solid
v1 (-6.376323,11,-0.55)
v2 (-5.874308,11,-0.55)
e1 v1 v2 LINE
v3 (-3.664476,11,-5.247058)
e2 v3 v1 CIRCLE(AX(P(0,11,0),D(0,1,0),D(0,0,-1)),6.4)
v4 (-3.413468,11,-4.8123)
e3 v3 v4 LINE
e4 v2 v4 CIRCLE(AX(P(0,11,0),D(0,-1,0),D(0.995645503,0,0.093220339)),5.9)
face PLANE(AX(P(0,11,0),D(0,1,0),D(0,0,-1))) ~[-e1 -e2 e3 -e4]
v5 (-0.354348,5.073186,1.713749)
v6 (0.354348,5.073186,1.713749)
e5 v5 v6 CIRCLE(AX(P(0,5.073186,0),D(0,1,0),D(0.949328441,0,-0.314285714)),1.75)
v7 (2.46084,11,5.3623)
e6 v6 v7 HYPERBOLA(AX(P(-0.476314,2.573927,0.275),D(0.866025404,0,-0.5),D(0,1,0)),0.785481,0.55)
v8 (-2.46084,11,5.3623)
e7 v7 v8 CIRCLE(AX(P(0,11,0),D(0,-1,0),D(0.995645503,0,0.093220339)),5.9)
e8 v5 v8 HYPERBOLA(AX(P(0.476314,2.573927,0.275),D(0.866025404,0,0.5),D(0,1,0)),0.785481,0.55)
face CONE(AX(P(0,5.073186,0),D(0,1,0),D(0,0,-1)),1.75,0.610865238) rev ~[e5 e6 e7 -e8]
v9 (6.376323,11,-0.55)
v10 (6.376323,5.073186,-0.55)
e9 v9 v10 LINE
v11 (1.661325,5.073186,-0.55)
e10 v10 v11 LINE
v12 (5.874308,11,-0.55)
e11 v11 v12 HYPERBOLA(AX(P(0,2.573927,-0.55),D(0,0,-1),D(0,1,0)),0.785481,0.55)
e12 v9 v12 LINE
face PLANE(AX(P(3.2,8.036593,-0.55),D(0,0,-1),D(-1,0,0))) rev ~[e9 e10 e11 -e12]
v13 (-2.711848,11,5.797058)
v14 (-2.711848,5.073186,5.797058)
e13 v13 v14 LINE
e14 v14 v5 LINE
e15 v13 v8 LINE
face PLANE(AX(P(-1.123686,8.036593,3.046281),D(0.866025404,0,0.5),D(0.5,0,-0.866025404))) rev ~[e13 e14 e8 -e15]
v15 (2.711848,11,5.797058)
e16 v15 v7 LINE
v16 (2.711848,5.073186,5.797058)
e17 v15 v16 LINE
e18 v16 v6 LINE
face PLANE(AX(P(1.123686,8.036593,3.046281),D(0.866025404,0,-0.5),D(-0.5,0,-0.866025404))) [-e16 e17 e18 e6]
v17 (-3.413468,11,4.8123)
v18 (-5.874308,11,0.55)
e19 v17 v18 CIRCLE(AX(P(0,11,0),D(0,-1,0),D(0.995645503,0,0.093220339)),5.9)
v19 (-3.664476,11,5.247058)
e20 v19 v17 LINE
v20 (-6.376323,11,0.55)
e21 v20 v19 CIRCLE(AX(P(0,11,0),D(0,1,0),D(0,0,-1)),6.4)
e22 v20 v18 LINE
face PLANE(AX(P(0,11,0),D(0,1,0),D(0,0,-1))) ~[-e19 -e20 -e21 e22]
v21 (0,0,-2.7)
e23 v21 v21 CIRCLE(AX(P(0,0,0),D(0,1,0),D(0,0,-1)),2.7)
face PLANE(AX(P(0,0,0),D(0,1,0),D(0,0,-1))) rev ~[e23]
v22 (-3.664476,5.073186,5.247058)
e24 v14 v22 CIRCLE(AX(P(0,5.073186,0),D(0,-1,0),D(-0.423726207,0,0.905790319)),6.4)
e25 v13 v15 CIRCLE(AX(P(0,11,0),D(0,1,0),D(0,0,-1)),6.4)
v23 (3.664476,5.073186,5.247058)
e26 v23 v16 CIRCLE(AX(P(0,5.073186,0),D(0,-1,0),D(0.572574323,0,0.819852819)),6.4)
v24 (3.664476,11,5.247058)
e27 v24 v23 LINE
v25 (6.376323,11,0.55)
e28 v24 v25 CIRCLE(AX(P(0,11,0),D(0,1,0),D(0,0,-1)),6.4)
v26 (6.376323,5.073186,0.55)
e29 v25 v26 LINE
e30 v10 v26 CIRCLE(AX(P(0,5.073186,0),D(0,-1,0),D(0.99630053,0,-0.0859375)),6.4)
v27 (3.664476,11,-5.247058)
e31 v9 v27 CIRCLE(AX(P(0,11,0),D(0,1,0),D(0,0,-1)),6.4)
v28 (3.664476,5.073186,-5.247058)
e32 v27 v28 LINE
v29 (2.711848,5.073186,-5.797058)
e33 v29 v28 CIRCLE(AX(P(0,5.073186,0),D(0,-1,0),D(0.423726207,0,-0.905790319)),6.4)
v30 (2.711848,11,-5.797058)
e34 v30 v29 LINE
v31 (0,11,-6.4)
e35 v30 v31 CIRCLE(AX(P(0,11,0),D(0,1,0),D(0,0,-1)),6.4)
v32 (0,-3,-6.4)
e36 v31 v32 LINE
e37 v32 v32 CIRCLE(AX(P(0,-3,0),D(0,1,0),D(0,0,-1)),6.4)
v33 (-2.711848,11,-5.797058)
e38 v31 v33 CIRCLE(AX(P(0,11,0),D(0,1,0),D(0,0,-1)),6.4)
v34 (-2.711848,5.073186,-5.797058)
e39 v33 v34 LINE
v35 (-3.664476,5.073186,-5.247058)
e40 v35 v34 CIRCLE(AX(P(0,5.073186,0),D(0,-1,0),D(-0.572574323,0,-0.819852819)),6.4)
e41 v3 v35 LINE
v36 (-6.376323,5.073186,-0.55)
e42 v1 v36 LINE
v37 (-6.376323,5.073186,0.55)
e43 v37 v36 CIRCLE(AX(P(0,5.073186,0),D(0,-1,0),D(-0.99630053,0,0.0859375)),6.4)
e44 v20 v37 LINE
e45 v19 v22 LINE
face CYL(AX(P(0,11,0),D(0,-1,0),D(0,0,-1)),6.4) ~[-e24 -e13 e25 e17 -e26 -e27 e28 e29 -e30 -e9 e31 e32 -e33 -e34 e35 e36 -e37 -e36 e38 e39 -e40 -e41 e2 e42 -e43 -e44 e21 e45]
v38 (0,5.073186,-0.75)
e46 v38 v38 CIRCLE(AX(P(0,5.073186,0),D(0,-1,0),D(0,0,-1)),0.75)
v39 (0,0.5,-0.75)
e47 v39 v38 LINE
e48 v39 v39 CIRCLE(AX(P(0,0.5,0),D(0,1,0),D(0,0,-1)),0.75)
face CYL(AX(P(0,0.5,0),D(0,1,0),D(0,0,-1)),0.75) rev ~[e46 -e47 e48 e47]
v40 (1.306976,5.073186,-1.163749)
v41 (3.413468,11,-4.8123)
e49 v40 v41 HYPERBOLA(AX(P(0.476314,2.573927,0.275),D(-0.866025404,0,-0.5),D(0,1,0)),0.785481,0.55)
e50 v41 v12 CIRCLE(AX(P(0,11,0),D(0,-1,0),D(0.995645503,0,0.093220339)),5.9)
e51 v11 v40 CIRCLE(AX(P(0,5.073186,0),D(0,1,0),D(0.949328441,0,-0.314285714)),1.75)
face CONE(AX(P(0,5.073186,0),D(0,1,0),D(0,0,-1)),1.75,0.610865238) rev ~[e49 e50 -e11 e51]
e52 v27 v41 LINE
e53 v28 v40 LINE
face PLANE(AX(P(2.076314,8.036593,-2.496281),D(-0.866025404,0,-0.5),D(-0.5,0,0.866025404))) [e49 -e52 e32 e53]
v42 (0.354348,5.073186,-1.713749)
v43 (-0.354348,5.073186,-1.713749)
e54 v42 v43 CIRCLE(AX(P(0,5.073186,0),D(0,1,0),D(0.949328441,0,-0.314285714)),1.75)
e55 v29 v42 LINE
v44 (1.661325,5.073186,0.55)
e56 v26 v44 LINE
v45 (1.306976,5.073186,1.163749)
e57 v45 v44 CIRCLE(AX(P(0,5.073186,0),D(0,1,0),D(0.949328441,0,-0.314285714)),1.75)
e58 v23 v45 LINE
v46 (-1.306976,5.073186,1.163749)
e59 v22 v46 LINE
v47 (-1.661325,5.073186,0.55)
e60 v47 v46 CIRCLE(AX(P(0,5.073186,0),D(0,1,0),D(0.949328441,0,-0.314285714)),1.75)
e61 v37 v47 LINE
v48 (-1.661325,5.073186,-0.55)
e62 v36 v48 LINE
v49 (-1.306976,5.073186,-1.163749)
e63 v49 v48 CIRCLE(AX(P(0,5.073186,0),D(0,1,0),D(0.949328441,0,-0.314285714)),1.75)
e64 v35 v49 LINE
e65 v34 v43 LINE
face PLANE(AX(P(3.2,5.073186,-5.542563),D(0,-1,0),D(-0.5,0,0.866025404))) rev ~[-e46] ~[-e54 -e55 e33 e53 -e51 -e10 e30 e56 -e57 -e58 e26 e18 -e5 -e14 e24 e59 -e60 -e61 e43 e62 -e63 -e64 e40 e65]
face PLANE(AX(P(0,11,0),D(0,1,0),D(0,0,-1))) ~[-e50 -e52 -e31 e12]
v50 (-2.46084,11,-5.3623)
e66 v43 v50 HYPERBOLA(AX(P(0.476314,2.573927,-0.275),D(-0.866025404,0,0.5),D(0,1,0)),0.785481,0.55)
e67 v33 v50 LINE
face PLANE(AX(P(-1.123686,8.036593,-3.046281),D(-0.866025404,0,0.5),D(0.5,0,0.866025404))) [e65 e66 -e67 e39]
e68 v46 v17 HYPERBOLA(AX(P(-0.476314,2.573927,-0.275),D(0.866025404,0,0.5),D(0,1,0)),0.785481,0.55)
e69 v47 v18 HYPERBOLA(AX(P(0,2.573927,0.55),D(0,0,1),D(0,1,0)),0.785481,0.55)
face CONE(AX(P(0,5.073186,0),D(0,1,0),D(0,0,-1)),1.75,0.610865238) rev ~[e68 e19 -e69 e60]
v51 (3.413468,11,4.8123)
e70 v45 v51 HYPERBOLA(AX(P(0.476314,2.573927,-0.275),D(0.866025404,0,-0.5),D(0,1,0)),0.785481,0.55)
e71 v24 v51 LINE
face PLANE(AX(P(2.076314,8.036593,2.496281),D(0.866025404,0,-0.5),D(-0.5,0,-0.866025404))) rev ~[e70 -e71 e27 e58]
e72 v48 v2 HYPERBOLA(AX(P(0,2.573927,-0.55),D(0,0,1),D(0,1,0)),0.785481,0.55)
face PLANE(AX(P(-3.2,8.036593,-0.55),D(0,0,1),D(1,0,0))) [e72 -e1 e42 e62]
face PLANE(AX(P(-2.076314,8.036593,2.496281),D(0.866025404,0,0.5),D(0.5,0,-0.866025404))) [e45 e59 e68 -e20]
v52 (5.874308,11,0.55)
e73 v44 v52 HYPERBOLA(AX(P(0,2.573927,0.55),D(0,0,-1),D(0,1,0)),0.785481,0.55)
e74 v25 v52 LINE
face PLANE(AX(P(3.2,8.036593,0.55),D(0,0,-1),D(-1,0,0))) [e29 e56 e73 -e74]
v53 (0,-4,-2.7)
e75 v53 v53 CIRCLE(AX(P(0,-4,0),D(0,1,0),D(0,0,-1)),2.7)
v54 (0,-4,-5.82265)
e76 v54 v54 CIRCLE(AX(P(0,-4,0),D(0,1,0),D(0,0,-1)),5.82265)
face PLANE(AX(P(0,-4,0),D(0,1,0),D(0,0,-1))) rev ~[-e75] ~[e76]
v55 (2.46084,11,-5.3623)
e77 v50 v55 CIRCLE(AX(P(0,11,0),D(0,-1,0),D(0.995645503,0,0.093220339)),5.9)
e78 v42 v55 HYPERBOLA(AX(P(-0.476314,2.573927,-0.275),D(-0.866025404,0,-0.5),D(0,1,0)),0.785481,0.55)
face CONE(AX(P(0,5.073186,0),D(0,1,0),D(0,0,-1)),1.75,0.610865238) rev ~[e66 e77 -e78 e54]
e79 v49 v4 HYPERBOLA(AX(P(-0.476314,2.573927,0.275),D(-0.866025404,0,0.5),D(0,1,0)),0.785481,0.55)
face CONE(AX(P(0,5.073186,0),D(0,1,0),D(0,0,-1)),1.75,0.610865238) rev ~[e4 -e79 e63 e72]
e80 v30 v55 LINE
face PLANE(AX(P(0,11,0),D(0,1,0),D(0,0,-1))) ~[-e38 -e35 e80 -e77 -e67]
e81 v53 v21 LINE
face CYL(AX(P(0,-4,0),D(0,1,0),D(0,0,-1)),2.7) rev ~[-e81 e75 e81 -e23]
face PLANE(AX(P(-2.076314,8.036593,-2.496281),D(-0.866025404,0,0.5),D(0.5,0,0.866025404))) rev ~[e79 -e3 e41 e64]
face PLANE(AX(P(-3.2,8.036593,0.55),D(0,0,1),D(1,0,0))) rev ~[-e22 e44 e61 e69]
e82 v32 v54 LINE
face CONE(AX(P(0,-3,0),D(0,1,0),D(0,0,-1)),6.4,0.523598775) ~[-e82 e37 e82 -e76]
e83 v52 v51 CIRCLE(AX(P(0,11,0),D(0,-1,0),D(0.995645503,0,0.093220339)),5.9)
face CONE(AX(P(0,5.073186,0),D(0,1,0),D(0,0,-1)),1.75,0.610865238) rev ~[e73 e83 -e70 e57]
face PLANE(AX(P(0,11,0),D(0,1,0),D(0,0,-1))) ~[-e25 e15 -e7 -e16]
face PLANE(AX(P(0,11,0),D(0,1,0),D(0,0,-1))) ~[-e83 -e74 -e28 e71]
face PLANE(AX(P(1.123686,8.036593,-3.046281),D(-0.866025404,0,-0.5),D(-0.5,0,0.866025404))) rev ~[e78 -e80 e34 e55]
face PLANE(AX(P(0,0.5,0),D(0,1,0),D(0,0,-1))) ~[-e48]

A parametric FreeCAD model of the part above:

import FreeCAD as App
import Part
import Sketcher

V = App.Vector
Q = App.Units.Quantity


def edges_at(feature, points):
    """Names of the edges that pass closest to the given points."""
    edges = feature.Shape.Edges
    near = lambda p: min(range(len(edges)), key=lambda i: edges[i].distToShape(Part.Vertex(*p))[0])
    return sorted({f"Edge{near(p) + 1}" for p in points})


def add_polygon(sketch, points):
    """Adds a closed chain of lines whose ends are joined by coincident constraints."""
    first, n = sketch.GeometryCount, len(points)
    for a, b in zip(points, points[1:] + points[:1]):
        sketch.addGeometry(Part.LineSegment(App.Vector(*a, 0), App.Vector(*b, 0)), False)
    for i in range(n):
        sketch.addConstraint(Sketcher.Constraint("Coincident", first + i, 2, first + (i + 1) % n, 1))

doc = App.newDocument("Part")
params = doc.addObject("Spreadsheet::Sheet", "Params")
for row, (alias, value) in enumerate([
    ("sketch1_width", "1 mm"),
    ("sketch1_height", "4 mm"),
    ("sketch1_height2", "15 mm"),
    ("sketch1_width2", "2.7 mm"),
    ("sketch1_width3", "3.7 mm"),
    ("revolution_angle", "360 deg"),
    ("chamfer_size", "1 mm"),
    ("chamfer_size2", "0.57735 mm"),
    ("sketch2_width", "6.4 mm"),
    ("pocket1_length", "1.1 mm"),
], start=1):
    params.set(f"A{row}", alias)
    params.set(f"B{row}", "=" + value)
    params.setAlias(f"B{row}", alias)

body = doc.addObject("PartDesign::Body", "Body")

sketch1 = body.newObject("Sketcher::SketchObject", "Sketch")
sketch1.AttachmentSupport = (doc.getObject("XY_Plane"), [""])
sketch1.MapMode = "FlatFace"
add_polygon(sketch1, [(0, 0.5), (0, 0), (2.7, 0), (2.7, -4), (6.4, -4), (6.4, 11), (5.9, 11), (1.75, 5.073186), (0.75, 5.073186), (0.75, 0.5)])
sketch1.addConstraint([
    Sketcher.Constraint("Vertical", 0),
    Sketcher.Constraint("Horizontal", 1),
    Sketcher.Constraint("Vertical", 2),
    Sketcher.Constraint("Horizontal", 3),
    Sketcher.Constraint("Vertical", 4),
    Sketcher.Constraint("Horizontal", 5),
    Sketcher.Constraint("Horizontal", 7),
    Sketcher.Constraint("Vertical", 8),
    Sketcher.Constraint("Horizontal", 9),
    Sketcher.Constraint("Coincident", 0, 2, -1, 1),
    Sketcher.Constraint("Equal", 5, 0),
    Sketcher.Constraint("DistanceX", 7, 2, 7, 1, Q("1 mm")),
    Sketcher.Constraint("DistanceY", 2, 2, 2, 1, Q("4 mm")),
    Sketcher.Constraint("DistanceY", 4, 1, 4, 2, Q("15 mm")),
    Sketcher.Constraint("Angle", 6, Q("-125 deg")),
    Sketcher.Constraint("DistanceX", 1, 1, 1, 2, Q("2.7 mm")),
    Sketcher.Constraint("DistanceX", 3, 1, 3, 2, Q("3.7 mm")),
    Sketcher.Constraint("DistanceX", 5, 2, 5, 1, Q("0.5 mm")),
    Sketcher.Constraint("DistanceX", 9, 2, 9, 1, Q("0.75 mm")),
])
sketch1.setExpression("Constraints[21]", "Params.sketch1_width")
sketch1.setExpression("Constraints[22]", "Params.sketch1_height")
sketch1.setExpression("Constraints[23]", "Params.sketch1_height2")
sketch1.setExpression("Constraints[25]", "Params.sketch1_width2")
sketch1.setExpression("Constraints[26]", "Params.sketch1_width3")
revolution = body.newObject("PartDesign::Revolution", "Revolution")
revolution.Profile = sketch1
revolution.ReferenceAxis = (sketch1, ["V_Axis"])
revolution.setExpression("Angle", "Params.revolution_angle")
doc.recompute()

chamfer = body.newObject("PartDesign::Chamfer", "Chamfer")
chamfer.Base = (revolution, edges_at(revolution, [(0, -4, 6.4)]))
chamfer.ChamferType = "Two distances"
chamfer.setExpression("Size", "Params.chamfer_size")
chamfer.setExpression("Size2", "Params.chamfer_size2")
chamfer.FlipDirection = True

sketch2 = body.newObject("Sketcher::SketchObject", "Sketch001")
sketch2.AttachmentSupport = (doc.getObject("XY_Plane"), [""])
sketch2.MapMode = "FlatFace"
add_polygon(sketch2, [(6.4, 11), (6.4, 5.073186), (0, 5.073186), (0, 11)])
sketch2.addConstraint([
    Sketcher.Constraint("Vertical", 0),
    Sketcher.Constraint("Horizontal", 1),
    Sketcher.Constraint("Vertical", 2),
    Sketcher.Constraint("Horizontal", 3),
    Sketcher.Constraint("PointOnObject", 1, 2, -2),
    Sketcher.Constraint("DistanceX", 1, 2, 1, 1, Q("6.4 mm")),
    Sketcher.Constraint("DistanceY", -1, 1, 2, 2, Q("11 mm")),
    Sketcher.Constraint("DistanceY", 0, 2, 0, 1, Q("5.926814 mm")),
])
sketch2.setExpression("Constraints[9]", "Params.sketch2_width")
pocket1 = body.newObject("PartDesign::Pocket", "Pocket")
pocket1.Profile = sketch2
pocket1.setExpression("Length", "Params.pocket1_length")
pocket1.Midplane = True
doc.recompute()

polarpattern = body.newObject("PartDesign::PolarPattern", "PolarPattern")
polarpattern.Originals = [pocket1]
polarpattern.Axis = (doc.getObject("Y_Axis"), [""])
polarpattern.Angle = 360
polarpattern.Occurrences = 6
body.Tip = polarpattern

doc.recompute()
